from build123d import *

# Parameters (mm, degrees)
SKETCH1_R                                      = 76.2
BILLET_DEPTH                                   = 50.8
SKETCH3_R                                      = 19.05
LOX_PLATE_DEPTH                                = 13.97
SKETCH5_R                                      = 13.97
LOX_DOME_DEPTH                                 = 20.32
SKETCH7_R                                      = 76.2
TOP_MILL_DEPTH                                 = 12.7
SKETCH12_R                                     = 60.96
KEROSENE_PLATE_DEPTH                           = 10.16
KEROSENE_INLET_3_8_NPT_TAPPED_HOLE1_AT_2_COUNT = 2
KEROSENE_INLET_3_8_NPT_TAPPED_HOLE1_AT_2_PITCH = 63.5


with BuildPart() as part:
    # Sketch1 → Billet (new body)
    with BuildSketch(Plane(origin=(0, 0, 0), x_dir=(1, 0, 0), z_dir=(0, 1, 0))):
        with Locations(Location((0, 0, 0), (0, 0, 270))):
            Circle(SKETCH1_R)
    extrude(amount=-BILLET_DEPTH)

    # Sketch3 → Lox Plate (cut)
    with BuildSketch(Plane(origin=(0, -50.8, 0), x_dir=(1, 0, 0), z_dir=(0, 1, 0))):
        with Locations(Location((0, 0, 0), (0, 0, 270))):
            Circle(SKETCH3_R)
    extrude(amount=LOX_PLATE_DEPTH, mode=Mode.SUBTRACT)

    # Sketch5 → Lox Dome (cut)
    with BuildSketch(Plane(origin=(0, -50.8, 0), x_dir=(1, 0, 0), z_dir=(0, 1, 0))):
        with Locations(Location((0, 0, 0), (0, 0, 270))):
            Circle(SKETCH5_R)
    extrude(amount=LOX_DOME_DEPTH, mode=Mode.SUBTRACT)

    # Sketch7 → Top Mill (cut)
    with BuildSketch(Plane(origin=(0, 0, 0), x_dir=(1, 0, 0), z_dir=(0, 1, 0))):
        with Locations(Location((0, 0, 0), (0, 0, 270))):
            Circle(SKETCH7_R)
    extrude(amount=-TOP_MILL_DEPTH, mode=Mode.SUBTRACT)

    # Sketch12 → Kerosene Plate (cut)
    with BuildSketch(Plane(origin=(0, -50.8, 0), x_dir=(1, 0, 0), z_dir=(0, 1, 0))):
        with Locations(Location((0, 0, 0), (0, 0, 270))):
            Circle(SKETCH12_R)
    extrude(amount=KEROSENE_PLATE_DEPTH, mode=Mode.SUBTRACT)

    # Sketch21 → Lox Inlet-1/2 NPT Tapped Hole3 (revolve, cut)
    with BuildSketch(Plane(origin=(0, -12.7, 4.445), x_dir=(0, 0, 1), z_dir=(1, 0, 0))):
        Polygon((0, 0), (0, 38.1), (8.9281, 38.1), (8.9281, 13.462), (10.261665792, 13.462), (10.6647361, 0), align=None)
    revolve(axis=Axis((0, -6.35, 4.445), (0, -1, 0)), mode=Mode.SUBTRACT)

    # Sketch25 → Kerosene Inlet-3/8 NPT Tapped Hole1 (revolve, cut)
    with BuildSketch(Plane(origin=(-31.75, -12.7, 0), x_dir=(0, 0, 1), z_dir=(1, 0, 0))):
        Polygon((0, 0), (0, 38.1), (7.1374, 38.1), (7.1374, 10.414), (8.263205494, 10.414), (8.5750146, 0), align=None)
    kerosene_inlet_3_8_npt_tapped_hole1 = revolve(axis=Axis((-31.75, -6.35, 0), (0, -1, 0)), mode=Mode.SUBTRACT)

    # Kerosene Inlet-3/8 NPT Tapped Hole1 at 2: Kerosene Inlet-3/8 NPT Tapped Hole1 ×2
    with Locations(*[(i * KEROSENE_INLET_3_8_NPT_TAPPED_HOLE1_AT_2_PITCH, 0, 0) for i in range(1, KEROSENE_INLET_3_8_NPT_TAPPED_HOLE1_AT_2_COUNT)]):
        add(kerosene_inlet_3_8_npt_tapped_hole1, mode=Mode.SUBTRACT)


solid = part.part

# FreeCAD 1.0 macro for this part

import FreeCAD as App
import Part
import Sketcher

V = App.Vector
Q = App.Units.Quantity

doc = App.newDocument("Part")
body = doc.addObject("PartDesign::Body", "Body")

sketch1 = body.newObject("Sketcher::SketchObject", "Sketch")
sketch1.AttachmentSupport = (doc.getObject("XZ_Plane"), [""])
sketch1.MapMode = "FlatFace"
sketch1.addGeometry(Part.Circle(V(0, 0, 0), V(0, 0, 1), 76.2), False)
sketch1.addConstraint([
    Sketcher.Constraint("Coincident", 0, 3, -1, 1),
    Sketcher.Constraint("Diameter", 0, Q("6 in")),
])
pad1 = body.newObject("PartDesign::Pad", "Pad")
pad1.Profile = sketch1
pad1.Length = Q("2 in")

sketch2 = body.newObject("Sketcher::SketchObject", "Sketch001")
sketch2.AttachmentSupport = (doc.getObject("XZ_Plane"), [""])
sketch2.MapMode = "FlatFace"
sketch2.AttachmentOffset = App.Placement(V(0, 0, 2 * 25.4), App.Rotation())
sketch2.addGeometry(Part.Circle(V(0, 0, 0), V(0, 0, 1), 19.05), False)
sketch2.addConstraint([
    Sketcher.Constraint("Coincident", 0, 3, -1, 1),
    Sketcher.Constraint("Diameter", 0, Q("1.5 in")),
])
pocket1 = body.newObject("PartDesign::Pocket", "Pocket")
pocket1.Profile = sketch2
pocket1.Length = Q("0.55 in")

sketch3 = body.newObject("Sketcher::SketchObject", "Sketch002")
sketch3.AttachmentSupport = (doc.getObject("XZ_Plane"), [""])
sketch3.MapMode = "FlatFace"
sketch3.AttachmentOffset = App.Placement(V(0, 0, 2 * 25.4), App.Rotation())
sketch3.addGeometry(Part.Circle(V(0, 0, 0), V(0, 0, 1), 13.97), False)
sketch3.addConstraint([
    Sketcher.Constraint("Coincident", 0, 3, -1, 1),
    Sketcher.Constraint("Diameter", 0, Q("1.1 in")),
])
pocket2 = body.newObject("PartDesign::Pocket", "Pocket001")
pocket2.Profile = sketch3
pocket2.Length = Q("0.8 in")

sketch4 = body.newObject("Sketcher::SketchObject", "Sketch003")
sketch4.AttachmentSupport = (doc.getObject("XZ_Plane"), [""])
sketch4.MapMode = "FlatFace"
sketch4.addGeometry(Part.Circle(V(0, 0, 0), V(0, 0, 1), 76.2), False)
sketch4.addConstraint([
    Sketcher.Constraint("Coincident", 0, 3, -1, 1),
    Sketcher.Constraint("Diameter", 0, Q("6 in")),
])
pocket3 = body.newObject("PartDesign::Pocket", "Pocket002")
pocket3.Profile = sketch4
pocket3.Length = Q("0.5 in")
pocket3.Reversed = True

sketch5 = body.newObject("Sketcher::SketchObject", "Sketch004")
sketch5.AttachmentSupport = (doc.getObject("XZ_Plane"), [""])
sketch5.MapMode = "FlatFace"
sketch5.AttachmentOffset = App.Placement(V(0, 0, 2 * 25.4), App.Rotation())
sketch5.addGeometry(Part.Circle(V(0, 0, 0), V(0, 0, 1), 60.96), False)
sketch5.addConstraint([
    Sketcher.Constraint("Coincident", 0, 3, -1, 1),
    Sketcher.Constraint("Diameter", 0, Q("4.8 in")),
])
pocket4 = body.newObject("PartDesign::Pocket", "Pocket003")
pocket4.Profile = sketch5
pocket4.Length = Q("0.4 in")

sketch6 = body.newObject("Sketcher::SketchObject", "Sketch005")
sketch6.AttachmentSupport = (doc.getObject("YZ_Plane"), [""])
sketch6.MapMode = "FlatFace"
sketch6.addGeometry([
    Part.LineSegment(V(-50.8, 4.445, 0), V(-12.7, 4.445, 0)),
    Part.LineSegment(V(-12.7, 4.445, 0), V(-12.7, 15.109736, 0)),
    Part.LineSegment(V(-12.7, 15.109736, 0), V(-26.162, 14.706666, 0)),
    Part.LineSegment(V(-26.162, 14.706666, 0), V(-26.162, 13.3731, 0)),
    Part.LineSegment(V(-26.162, 13.3731, 0), V(-50.8, 13.3731, 0)),
    Part.LineSegment(V(-50.8, 13.3731, 0), V(-50.8, 4.445, 0)),
], False)
sketch6.addGeometry(Part.LineSegment(V(-12.7, 4.445, 0), V(-50.8, 4.445, 0)), True)
sketch6.addConstraint([
    Sketcher.Constraint("Coincident", 0, 2, 1, 1),
    Sketcher.Constraint("Coincident", 1, 2, 2, 1),
    Sketcher.Constraint("Coincident", 2, 2, 3, 1),
    Sketcher.Constraint("Coincident", 3, 2, 4, 1),
    Sketcher.Constraint("Coincident", 4, 2, 5, 1),
    Sketcher.Constraint("Coincident", 5, 2, 0, 1),
    Sketcher.Constraint("Horizontal", 0),
    Sketcher.Constraint("Vertical", 1),
    Sketcher.Constraint("Vertical", 3),
    Sketcher.Constraint("Horizontal", 4),
    Sketcher.Constraint("Vertical", 5),
    Sketcher.Constraint("Horizontal", 6),
    Sketcher.Constraint("Coincident", 6, 1, 0, 2),
    Sketcher.Constraint("Vertical", 4, 2, 6, 2),
    Sketcher.Constraint("DistanceX", 0, 1, 0, 2, Q("1.5 in")),
    Sketcher.Constraint("DistanceX", 4, 2, -1, 1, Q("2 in")),
    Sketcher.Constraint("DistanceX", 4, 2, 4, 1, Q("0.97 in")),
    Sketcher.Constraint("DistanceY", 5, 2, 5, 1, Q("0.3515 in")),
    Sketcher.Constraint("DistanceY", -1, 1, 0, 2, Q("0.175 in")),
    Sketcher.Constraint("DistanceY", 1, 1, 1, 2, Q("10.664736 mm")),
    Sketcher.Constraint("DistanceY", 3, 2, 3, 1, Q("1.333566 mm")),
])
groove = body.newObject("PartDesign::Groove", "Groove")
groove.Profile = sketch6
groove.ReferenceAxis = (sketch6, ["Axis0"])
groove.Angle = 360

sketch7 = body.newObject("Sketcher::SketchObject", "Sketch006")
sketch7.AttachmentSupport = (doc.getObject("YZ_Plane"), [""])
sketch7.MapMode = "FlatFace"
sketch7.AttachmentOffset = App.Placement(V(0, 0, -1.25 * 25.4), App.Rotation())
sketch7.addGeometry([
    Part.LineSegment(V(-50.8, 0, 0), V(-12.7, 0, 0)),
    Part.LineSegment(V(-12.7, 0, 0), V(-12.7, 8.575015, 0)),
    Part.LineSegment(V(-12.7, 8.575015, 0), V(-23.114, 8.263205, 0)),
    Part.LineSegment(V(-23.114, 8.263205, 0), V(-23.114, 7.1374, 0)),
    Part.LineSegment(V(-23.114, 7.1374, 0), V(-50.8, 7.1374, 0)),
    Part.LineSegment(V(-50.8, 7.1374, 0), V(-50.8, 0, 0)),
], False)
sketch7.addConstraint([
    Sketcher.Constraint("Coincident", 0, 2, 1, 1),
    Sketcher.Constraint("Coincident", 1, 2, 2, 1),
    Sketcher.Constraint("Coincident", 2, 2, 3, 1),
    Sketcher.Constraint("Coincident", 3, 2, 4, 1),
    Sketcher.Constraint("Coincident", 4, 2, 5, 1),
    Sketcher.Constraint("Coincident", 5, 2, 0, 1),
    Sketcher.Constraint("Horizontal", 0),
    Sketcher.Constraint("Vertical", 1),
    Sketcher.Constraint("Vertical", 3),
    Sketcher.Constraint("Horizontal", 4),
    Sketcher.Constraint("Vertical", 5),
    Sketcher.Constraint("PointOnObject", 0, 2, -1),
    Sketcher.Constraint("DistanceX", 0, 1, 0, 2, Q("1.5 in")),
    Sketcher.Constraint("DistanceX", 4, 2, -1, 1, Q("2 in")),
    Sketcher.Constraint("DistanceX", 4, 2, 4, 1, Q("1.09 in")),
    Sketcher.Constraint("DistanceY", 5, 2, 5, 1, Q("0.281 in")),
    Sketcher.Constraint("DistanceY", 1, 1, 1, 2, Q("8.575015 mm")),
    Sketcher.Constraint("DistanceY", 3, 2, 3, 1, Q("1.125805 mm")),
])
groove2 = body.newObject("PartDesign::Groove", "Groove001")
groove2.Profile = sketch7
groove2.ReferenceAxis = (sketch7, ["H_Axis"])
groove2.Angle = 360
doc.recompute()

linearpattern = body.newObject("PartDesign::LinearPattern", "LinearPattern")
linearpattern.Originals = [groove2]
linearpattern.Direction = (doc.getObject("X_Axis"), [""])
linearpattern.Mode = "offset"
linearpattern.Offset = Q("2.5 in")
linearpattern.Occurrences = 2
body.Tip = linearpattern

doc.recompute()
